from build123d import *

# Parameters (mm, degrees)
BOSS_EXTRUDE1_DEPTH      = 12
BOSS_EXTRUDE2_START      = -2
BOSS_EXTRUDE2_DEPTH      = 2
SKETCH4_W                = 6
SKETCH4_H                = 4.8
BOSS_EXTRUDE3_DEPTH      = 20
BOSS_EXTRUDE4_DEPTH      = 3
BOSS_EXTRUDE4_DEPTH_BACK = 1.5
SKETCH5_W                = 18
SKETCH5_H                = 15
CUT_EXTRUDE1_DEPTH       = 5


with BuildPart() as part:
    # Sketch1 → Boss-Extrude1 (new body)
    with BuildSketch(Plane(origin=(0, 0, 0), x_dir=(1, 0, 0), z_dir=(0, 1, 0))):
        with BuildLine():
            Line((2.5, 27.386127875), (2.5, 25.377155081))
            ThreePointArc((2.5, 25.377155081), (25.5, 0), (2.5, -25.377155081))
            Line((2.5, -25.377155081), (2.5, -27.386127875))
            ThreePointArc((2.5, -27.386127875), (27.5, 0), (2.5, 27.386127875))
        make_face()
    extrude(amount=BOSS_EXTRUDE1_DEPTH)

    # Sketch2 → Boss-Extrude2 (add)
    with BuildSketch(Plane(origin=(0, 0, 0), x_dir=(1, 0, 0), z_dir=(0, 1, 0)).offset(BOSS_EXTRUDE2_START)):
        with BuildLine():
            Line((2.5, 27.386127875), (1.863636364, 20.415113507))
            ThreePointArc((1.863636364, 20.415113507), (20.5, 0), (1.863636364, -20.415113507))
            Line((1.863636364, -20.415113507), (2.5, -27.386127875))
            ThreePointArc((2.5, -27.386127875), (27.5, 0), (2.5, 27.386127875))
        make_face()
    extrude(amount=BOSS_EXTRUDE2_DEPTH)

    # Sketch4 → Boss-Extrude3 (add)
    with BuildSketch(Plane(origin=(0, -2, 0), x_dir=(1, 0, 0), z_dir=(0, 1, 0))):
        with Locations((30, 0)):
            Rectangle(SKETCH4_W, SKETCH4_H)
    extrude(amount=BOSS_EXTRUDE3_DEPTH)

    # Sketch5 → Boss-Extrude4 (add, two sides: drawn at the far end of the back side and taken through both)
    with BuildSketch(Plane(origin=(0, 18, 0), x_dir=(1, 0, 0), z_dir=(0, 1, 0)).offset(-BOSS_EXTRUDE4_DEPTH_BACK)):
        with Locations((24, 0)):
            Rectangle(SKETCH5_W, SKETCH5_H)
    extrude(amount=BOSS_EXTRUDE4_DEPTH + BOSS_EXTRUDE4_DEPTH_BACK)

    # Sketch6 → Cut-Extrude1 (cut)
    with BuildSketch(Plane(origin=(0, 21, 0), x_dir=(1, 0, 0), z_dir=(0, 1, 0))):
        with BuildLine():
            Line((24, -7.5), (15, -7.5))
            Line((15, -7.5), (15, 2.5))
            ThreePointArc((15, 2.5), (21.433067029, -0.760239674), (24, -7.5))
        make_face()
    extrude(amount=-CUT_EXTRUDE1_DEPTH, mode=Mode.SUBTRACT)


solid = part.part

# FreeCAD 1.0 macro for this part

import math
import FreeCAD as App
import Part
import Sketcher

V = App.Vector


def add_polygon(sketch, points):
    """Adds a closed chain of lines whose ends are joined by coincident constraints."""
    first, n = sketch.GeometryCount, len(points)
    for a, b in zip(points, points[1:] + points[:1]):
        sketch.addGeometry(Part.LineSegment(App.Vector(*a, 0), App.Vector(*b, 0)), False)
    for i in range(n):
        sketch.addConstraint(Sketcher.Constraint("Coincident", first + i, 2, first + (i + 1) % n, 1))

doc = App.newDocument("Part")
params = doc.addObject("Spreadsheet::Sheet", "Params")
for row, (alias, value) in enumerate([
    ("sketch1_radius", "25.5 mm"),
    ("sketch1_radius2", "27.5 mm"),
    ("pad1_length", "12 mm"),
    ("sketch2_radius", "20.5 mm"),
    ("sketch2_radius2", "27.5 mm"),
    ("pad2_length", "2 mm"),
    ("sketch3_width", "6 mm"),
    ("sketch3_height", "4.8 mm"),
    ("pad3_length", "20 mm"),
    ("sketch4_width", "18 mm"),
    ("sketch4_height", "15 mm"),
    ("pad4_length", "3 mm"),
    ("pad4_length2", "1.5 mm"),
    ("sketch5_radius", "10 mm"),
    ("sketch5_width", "9 mm"),
    ("sketch5_height", "10 mm"),
    ("pocket1_length", "5 mm"),
], start=1):
    params.set(f"A{row}", alias)
    params.set(f"B{row}", "=" + value)
    params.setAlias(f"B{row}", alias)

body = doc.addObject("PartDesign::Body", "Body")

# Sketch on XZ plane
sketch1 = body.newObject("Sketcher::SketchObject", "Sketch")
sketch1.AttachmentSupport = (doc.getObject("XZ_Plane"), [""])
sketch1.MapMode = "FlatFace"
sketch1.addGeometry(Part.LineSegment(V(2.5, -27.4, 0), V(2.5, -25.4, 0)), False)
sketch1.addGeometry(Part.ArcOfCircle(Part.Circle(V(0, 0, 0), V(0, 0, 1), 25.5), math.radians(-84), math.radians(84)), False)
sketch1.addGeometry(Part.LineSegment(V(2.5, 25.4, 0), V(2.5, 27.4, 0)), False)
sketch1.addGeometry(Part.ArcOfCircle(Part.Circle(V(0, 0, 0), V(0, 0, 1), 27.5), math.radians(-85), math.radians(85)), False)
sketch1.addConstraint(Sketcher.Constraint("Coincident", 0, 2, 1, 1))
sketch1.addConstraint(Sketcher.Constraint("Coincident", 1, 2, 2, 1))
sketch1.addConstraint(Sketcher.Constraint("Coincident", 2, 2, 3, 2))
sketch1.addConstraint(Sketcher.Constraint("Coincident", 3, 1, 0, 1))
sketch1.addConstraint(Sketcher.Constraint("Vertical", 0))
sketch1.addConstraint(Sketcher.Constraint("Vertical", 2))
sketch1.addConstraint(Sketcher.Constraint("Coincident", 1, 3, -1, 1))
sketch1.addConstraint(Sketcher.Constraint("Coincident", 3, 3, -1, 1))
sketch1.addConstraint(Sketcher.Constraint("Vertical", 0, 2, 1, 2))
sketch1.addConstraint(Sketcher.Constraint("Radius", 1, 25.5))
sketch1.addConstraint(Sketcher.Constraint("Radius", 3, 27.5))
sketch1.addConstraint(Sketcher.Constraint("DistanceX", -1, 1, 0, 2, 2.5))
sketch1.setExpression("Constraints[9]", "Params.sketch1_radius")
sketch1.setExpression("Constraints[10]", "Params.sketch1_radius2")
pad1 = body.newObject("PartDesign::Pad", "Pad")
pad1.Profile = sketch1
pad1.setExpression("Length", "Params.pad1_length")
pad1.Reversed = True

# Sketch on XZ plane
sketch2 = body.newObject("Sketcher::SketchObject", "Sketch001")
sketch2.AttachmentSupport = (doc.getObject("XZ_Plane"), [""])
sketch2.MapMode = "FlatFace"
sketch2.AttachmentOffset = App.Placement(V(0, 0, 2), App.Rotation())
sketch2.addGeometry(Part.LineSegment(V(2, -27, 0), V(2, -20, 0)), False)
sketch2.addGeometry(Part.ArcOfCircle(Part.Circle(V(0, 0, 0), V(0, 0, 1), 20), math.radians(-85), math.radians(85)), False)
sketch2.addGeometry(Part.LineSegment(V(2, 20, 0), V(2, 27, 0)), False)
sketch2.addGeometry(Part.ArcOfCircle(Part.Circle(V(0, 0, 0), V(0, 0, 1), 28), math.radians(-85), math.radians(85)), False)
sketch2.addConstraint(Sketcher.Constraint("Coincident", 0, 2, 1, 1))
sketch2.addConstraint(Sketcher.Constraint("Coincident", 1, 2, 2, 1))
sketch2.addConstraint(Sketcher.Constraint("Coincident", 2, 2, 3, 2))
sketch2.addConstraint(Sketcher.Constraint("Coincident", 3, 1, 0, 1))
sketch2.addConstraint(Sketcher.Constraint("Coincident", 1, 3, -1, 1))
sketch2.addConstraint(Sketcher.Constraint("Coincident", 3, 3, -1, 1))
sketch2.addConstraint(Sketcher.Constraint("Vertical", 0, 2, 1, 2))
sketch2.addConstraint(Sketcher.Constraint("Vertical", 2, 2, 3, 1))
sketch2.addConstraint(Sketcher.Constraint("Radius", 1, 20.5))
sketch2.addConstraint(Sketcher.Constraint("Radius", 3, 27.5))
sketch2.addConstraint(Sketcher.Constraint("DistanceX", -1, 1, 2, 2, 2.5))
sketch2.addConstraint(Sketcher.Constraint("DistanceY", 0, 2, 2, 2, 47.801241))
sketch2.setExpression("Constraints[8]", "Params.sketch2_radius")
sketch2.setExpression("Constraints[9]", "Params.sketch2_radius2")
pad2 = body.newObject("PartDesign::Pad", "Pad001")
pad2.Profile = sketch2
pad2.setExpression("Length", "Params.pad2_length")
pad2.Reversed = True

# Sketch on XZ plane
sketch3 = body.newObject("Sketcher::SketchObject", "Sketch002")
sketch3.AttachmentSupport = (doc.getObject("XZ_Plane"), [""])
sketch3.MapMode = "FlatFace"
sketch3.AttachmentOffset = App.Placement(V(0, 0, 2), App.Rotation())
add_polygon(sketch3, [(27, -2.4), (27, 2.4), (33, 2.4), (33, -2.4)])  # lines 0-3
sketch3.addConstraint(Sketcher.Constraint("Vertical", 0))
sketch3.addConstraint(Sketcher.Constraint("Horizontal", 1))
sketch3.addConstraint(Sketcher.Constraint("Vertical", 2))
sketch3.addConstraint(Sketcher.Constraint("Horizontal", 3))
sketch3.addConstraint(Sketcher.Constraint("DistanceX", 1, 1, 1, 2, 6.0))
sketch3.addConstraint(Sketcher.Constraint("DistanceY", 0, 1, 0, 2, 4.8))
sketch3.addConstraint(Sketcher.Constraint("DistanceX", -1, 1, 0, 2, 27.0))
sketch3.addConstraint(Sketcher.Constraint("DistanceY", -1, 1, 0, 2, 2.4))
sketch3.setExpression("Constraints[8]", "Params.sketch3_width")
sketch3.setExpression("Constraints[9]", "Params.sketch3_height")
pad3 = body.newObject("PartDesign::Pad", "Pad002")
pad3.Profile = sketch3
pad3.setExpression("Length", "Params.pad3_length")
pad3.Reversed = True

# Sketch on XZ plane
sketch4 = body.newObject("Sketcher::SketchObject", "Sketch003")
sketch4.AttachmentSupport = (doc.getObject("XZ_Plane"), [""])
sketch4.MapMode = "FlatFace"
sketch4.AttachmentOffset = App.Placement(V(0, 0, -18), App.Rotation())
add_polygon(sketch4, [(15, -8), (15, 8), (33, 8), (33, -8)])  # lines 0-3
sketch4.addConstraint(Sketcher.Constraint("Vertical", 0))
sketch4.addConstraint(Sketcher.Constraint("Horizontal", 1))
sketch4.addConstraint(Sketcher.Constraint("Vertical", 2))
sketch4.addConstraint(Sketcher.Constraint("Horizontal", 3))
sketch4.addConstraint(Sketcher.Constraint("DistanceX", 1, 1, 1, 2, 18.0))
sketch4.addConstraint(Sketcher.Constraint("DistanceY", 0, 1, 0, 2, 15.0))
sketch4.addConstraint(Sketcher.Constraint("DistanceX", -1, 1, 0, 2, 15.0))
sketch4.addConstraint(Sketcher.Constraint("DistanceY", -1, 1, 0, 2, 7.5))
sketch4.setExpression("Constraints[8]", "Params.sketch4_width")
sketch4.setExpression("Constraints[9]", "Params.sketch4_height")
pad4 = body.newObject("PartDesign::Pad", "Pad003")
pad4.Profile = sketch4
pad4.Type = "TwoLengths"
pad4.setExpression("Length", "Params.pad4_length")
pad4.setExpression("Length2", "Params.pad4_length2")
pad4.Reversed = True

# Sketch on XZ plane
sketch5 = body.newObject("Sketcher::SketchObject", "Sketch004")
sketch5.AttachmentSupport = (doc.getObject("XZ_Plane"), [""])
sketch5.MapMode = "FlatFace"
sketch5.AttachmentOffset = App.Placement(V(0, 0, -21), App.Rotation())
sketch5.addGeometry(Part.LineSegment(V(15, 8, 0), V(24, 8, 0)), False)
sketch5.addGeometry(Part.ArcOfCircle(Part.Circle(V(14, 7, 0), V(0, 0, 1), 10), math.radians(-84), math.radians(0)), False)
sketch5.addGeometry(Part.LineSegment(V(15, -2, 0), V(15, 8, 0)), False)
sketch5.addConstraint(Sketcher.Constraint("Coincident", 0, 2, 1, 2))
sketch5.addConstraint(Sketcher.Constraint("Coincident", 1, 1, 2, 1))
sketch5.addConstraint(Sketcher.Constraint("Coincident", 2, 2, 0, 1))
sketch5.addConstraint(Sketcher.Constraint("Horizontal", 0))
sketch5.addConstraint(Sketcher.Constraint("Vertical", 2))
sketch5.addConstraint(Sketcher.Constraint("Radius", 1, 10.0))
sketch5.addConstraint(Sketcher.Constraint("DistanceX", 0, 1, 0, 2, 9.0))
sketch5.addConstraint(Sketcher.Constraint("DistanceY", 2, 1, 2, 2, 10.0))
sketch5.addConstraint(Sketcher.Constraint("DistanceX", -1, 1, 0, 2, 24.0))
sketch5.addConstraint(Sketcher.Constraint("DistanceY", -1, 1, 0, 2, 7.5))
sketch5.setExpression("Constraints[5]", "Params.sketch5_radius")
sketch5.setExpression("Constraints[6]", "Params.sketch5_width")
sketch5.setExpression("Constraints[7]", "Params.sketch5_height")
pocket1 = body.newObject("PartDesign::Pocket", "Pocket")
pocket1.Profile = sketch5
pocket1.setExpression("Length", "Params.pocket1_length")
pocket1.Reversed = True

doc.recompute()
